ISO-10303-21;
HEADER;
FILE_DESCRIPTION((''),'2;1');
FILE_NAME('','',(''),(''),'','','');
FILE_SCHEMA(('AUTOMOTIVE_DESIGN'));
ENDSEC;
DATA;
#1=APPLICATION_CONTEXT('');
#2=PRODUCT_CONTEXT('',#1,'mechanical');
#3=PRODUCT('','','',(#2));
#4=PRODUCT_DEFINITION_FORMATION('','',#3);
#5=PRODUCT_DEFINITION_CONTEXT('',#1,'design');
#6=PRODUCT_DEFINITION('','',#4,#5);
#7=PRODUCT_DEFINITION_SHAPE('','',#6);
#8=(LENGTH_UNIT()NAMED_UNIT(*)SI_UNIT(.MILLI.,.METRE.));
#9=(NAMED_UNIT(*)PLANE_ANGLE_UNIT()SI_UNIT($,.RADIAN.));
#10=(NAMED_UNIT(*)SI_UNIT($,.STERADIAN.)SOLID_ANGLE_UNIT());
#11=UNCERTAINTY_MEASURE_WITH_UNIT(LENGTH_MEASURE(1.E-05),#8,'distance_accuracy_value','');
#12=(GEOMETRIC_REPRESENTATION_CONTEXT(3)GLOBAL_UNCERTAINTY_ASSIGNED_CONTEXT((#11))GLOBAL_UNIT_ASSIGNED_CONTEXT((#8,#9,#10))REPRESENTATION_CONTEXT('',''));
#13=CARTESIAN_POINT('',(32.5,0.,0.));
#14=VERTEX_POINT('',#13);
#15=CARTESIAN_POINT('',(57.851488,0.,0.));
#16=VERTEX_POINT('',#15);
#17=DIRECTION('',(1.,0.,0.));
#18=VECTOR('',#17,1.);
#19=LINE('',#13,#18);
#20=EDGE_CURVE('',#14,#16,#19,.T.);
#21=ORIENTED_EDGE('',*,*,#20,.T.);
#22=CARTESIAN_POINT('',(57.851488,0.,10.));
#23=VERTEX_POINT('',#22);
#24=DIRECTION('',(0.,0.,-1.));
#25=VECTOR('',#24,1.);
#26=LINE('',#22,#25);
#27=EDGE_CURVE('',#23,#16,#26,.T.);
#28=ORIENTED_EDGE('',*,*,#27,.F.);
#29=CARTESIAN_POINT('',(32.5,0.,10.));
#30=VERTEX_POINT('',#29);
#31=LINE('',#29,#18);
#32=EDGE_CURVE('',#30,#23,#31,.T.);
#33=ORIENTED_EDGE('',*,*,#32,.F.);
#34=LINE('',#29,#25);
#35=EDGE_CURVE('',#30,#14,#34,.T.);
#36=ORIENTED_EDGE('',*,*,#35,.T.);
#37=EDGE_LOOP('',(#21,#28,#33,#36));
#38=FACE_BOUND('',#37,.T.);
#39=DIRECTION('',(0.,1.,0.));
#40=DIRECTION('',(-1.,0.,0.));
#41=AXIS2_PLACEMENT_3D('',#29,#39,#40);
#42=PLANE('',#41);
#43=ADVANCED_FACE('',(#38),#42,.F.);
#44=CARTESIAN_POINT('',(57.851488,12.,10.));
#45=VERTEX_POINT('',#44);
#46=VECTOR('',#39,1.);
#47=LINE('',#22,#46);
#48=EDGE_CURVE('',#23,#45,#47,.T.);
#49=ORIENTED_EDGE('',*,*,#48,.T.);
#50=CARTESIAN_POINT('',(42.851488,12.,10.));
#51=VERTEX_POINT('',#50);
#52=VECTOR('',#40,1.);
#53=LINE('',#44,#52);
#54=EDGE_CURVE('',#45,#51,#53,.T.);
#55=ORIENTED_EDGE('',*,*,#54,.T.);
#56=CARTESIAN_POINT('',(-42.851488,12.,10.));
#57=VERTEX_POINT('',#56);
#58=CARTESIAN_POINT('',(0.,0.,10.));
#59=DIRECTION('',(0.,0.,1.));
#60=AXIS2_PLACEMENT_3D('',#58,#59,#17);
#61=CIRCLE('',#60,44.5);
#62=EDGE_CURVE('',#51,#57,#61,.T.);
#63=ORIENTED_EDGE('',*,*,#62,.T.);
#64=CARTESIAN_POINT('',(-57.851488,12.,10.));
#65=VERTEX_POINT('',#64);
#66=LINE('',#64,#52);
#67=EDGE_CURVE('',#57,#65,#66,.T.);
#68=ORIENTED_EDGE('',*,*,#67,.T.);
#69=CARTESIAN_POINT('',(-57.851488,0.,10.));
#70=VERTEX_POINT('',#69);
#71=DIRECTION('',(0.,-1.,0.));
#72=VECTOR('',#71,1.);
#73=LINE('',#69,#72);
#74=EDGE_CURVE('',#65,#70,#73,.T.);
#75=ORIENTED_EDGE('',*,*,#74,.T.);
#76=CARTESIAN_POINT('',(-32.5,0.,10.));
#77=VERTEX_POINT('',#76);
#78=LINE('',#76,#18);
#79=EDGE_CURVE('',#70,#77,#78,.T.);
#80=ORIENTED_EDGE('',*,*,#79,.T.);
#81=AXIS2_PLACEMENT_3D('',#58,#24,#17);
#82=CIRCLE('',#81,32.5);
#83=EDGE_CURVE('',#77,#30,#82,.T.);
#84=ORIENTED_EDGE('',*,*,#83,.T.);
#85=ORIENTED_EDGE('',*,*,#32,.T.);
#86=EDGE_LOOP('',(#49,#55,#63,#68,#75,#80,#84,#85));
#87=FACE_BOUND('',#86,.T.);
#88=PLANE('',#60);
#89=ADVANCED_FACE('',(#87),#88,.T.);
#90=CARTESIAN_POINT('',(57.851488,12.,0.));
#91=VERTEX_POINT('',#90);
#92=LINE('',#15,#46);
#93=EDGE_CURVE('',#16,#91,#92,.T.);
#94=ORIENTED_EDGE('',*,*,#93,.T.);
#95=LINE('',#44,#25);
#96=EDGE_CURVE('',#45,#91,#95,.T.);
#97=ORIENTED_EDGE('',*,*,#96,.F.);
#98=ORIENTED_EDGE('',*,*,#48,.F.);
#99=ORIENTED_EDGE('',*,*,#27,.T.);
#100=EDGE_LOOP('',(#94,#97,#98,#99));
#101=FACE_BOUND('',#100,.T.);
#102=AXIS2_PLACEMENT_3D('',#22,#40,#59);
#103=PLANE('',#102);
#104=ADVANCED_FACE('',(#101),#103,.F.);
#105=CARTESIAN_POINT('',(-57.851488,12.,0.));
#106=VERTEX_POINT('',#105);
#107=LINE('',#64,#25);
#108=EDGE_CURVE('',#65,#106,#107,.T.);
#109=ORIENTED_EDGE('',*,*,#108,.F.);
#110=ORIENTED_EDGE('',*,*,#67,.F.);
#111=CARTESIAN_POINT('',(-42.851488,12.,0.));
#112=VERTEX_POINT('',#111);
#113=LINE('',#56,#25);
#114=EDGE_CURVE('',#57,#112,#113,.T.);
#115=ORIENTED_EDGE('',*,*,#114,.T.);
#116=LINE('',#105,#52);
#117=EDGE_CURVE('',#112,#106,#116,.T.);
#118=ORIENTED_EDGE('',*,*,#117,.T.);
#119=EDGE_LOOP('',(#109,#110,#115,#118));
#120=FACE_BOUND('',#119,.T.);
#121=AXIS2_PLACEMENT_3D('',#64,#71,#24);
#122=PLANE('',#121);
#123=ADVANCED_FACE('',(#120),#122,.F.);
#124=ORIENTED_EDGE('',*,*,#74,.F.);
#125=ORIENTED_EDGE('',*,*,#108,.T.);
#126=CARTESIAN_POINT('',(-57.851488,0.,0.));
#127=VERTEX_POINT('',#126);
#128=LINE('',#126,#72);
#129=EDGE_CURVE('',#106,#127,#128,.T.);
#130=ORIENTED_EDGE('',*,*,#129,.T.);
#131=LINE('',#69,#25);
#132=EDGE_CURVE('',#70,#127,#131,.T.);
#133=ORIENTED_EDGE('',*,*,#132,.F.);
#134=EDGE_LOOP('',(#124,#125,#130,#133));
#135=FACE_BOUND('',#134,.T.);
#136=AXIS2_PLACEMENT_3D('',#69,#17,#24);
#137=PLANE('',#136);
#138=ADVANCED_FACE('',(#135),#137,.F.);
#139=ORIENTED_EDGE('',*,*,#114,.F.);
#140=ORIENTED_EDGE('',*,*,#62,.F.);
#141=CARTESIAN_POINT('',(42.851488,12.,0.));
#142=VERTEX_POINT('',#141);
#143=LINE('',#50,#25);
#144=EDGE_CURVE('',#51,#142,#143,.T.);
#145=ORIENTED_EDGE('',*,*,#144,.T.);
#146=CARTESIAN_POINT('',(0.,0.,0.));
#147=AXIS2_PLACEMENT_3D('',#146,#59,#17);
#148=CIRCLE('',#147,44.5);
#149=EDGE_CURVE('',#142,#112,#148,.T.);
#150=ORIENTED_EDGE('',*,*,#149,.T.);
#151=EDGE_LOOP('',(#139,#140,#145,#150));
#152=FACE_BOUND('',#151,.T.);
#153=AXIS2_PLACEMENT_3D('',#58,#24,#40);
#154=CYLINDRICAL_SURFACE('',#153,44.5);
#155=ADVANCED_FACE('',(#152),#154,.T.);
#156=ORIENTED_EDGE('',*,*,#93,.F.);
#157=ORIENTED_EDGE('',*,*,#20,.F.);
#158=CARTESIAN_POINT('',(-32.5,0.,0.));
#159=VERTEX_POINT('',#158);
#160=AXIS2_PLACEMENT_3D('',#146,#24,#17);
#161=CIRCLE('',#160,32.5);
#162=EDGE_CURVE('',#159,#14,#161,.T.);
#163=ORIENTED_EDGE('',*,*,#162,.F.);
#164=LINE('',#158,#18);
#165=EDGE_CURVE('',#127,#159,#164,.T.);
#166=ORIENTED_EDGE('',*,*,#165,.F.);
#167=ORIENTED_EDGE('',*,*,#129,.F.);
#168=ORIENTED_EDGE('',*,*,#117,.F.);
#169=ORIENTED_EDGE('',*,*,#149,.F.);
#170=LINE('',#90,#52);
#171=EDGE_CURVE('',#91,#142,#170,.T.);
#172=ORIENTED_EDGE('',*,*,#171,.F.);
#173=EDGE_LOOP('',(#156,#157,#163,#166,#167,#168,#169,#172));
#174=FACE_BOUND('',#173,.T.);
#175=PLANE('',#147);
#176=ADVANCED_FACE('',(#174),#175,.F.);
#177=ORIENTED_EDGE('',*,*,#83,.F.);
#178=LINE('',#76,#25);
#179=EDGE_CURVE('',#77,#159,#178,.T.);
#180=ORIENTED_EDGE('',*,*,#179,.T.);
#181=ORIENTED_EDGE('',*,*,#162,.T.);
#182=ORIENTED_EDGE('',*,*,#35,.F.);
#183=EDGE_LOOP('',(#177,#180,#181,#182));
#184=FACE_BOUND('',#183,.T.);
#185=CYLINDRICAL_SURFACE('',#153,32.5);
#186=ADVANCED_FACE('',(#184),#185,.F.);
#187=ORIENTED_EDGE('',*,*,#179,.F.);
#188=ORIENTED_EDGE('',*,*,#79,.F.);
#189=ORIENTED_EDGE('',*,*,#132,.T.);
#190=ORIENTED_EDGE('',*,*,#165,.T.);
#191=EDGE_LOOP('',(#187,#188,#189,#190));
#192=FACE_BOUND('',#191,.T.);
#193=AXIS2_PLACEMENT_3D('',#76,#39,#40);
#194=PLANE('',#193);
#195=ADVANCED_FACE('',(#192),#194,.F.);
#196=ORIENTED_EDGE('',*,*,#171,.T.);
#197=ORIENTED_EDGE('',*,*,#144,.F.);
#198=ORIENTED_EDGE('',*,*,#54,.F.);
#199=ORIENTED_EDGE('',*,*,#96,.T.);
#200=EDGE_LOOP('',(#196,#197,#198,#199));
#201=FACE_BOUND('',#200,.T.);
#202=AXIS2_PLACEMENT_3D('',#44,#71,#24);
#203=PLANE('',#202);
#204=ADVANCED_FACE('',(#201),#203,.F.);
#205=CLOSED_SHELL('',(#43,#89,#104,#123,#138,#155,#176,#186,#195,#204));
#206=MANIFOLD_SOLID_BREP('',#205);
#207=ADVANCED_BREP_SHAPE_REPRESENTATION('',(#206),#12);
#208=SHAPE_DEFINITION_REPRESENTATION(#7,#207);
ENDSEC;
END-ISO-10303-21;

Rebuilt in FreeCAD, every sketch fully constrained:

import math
import FreeCAD as App
import Part
import Sketcher

V = App.Vector
Q = App.Units.Quantity

doc = App.newDocument("Part")
body = doc.addObject("PartDesign::Body", "Body")

sketch1 = body.newObject("Sketcher::SketchObject", "Sketch")
sketch1.AttachmentSupport = (doc.getObject("XY_Plane"), [""])
sketch1.MapMode = "FlatFace"
sketch1.addGeometry(Part.LineSegment(V(-58, 0, 0), V(-32, 0, 0)), False)
sketch1.addGeometry(Part.ArcOfCircle(Part.Circle(V(0, 0, 0), V(0, 0, 1), 32), math.radians(0), math.radians(180)), False)
sketch1.addGeometry(Part.LineSegment(V(32, 0, 0), V(58, 0, 0)), False)
sketch1.addGeometry(Part.LineSegment(V(58, 0, 0), V(58, 12, 0)), False)
sketch1.addGeometry(Part.LineSegment(V(58, 12, 0), V(43, 12, 0)), False)
sketch1.addGeometry(Part.ArcOfCircle(Part.Circle(V(0, 0, 0), V(0, 0, 1), 44), math.radians(16), math.radians(164)), False)
sketch1.addGeometry(Part.LineSegment(V(-43, 12, 0), V(-58, 12, 0)), False)
sketch1.addGeometry(Part.LineSegment(V(-58, 12, 0), V(-58, 0, 0)), False)
sketch1.addConstraint(Sketcher.Constraint("Coincident", 0, 2, 1, 2))
sketch1.addConstraint(Sketcher.Constraint("Coincident", 1, 1, 2, 1))
sketch1.addConstraint(Sketcher.Constraint("Coincident", 2, 2, 3, 1))
sketch1.addConstraint(Sketcher.Constraint("Coincident", 3, 2, 4, 1))
sketch1.addConstraint(Sketcher.Constraint("Coincident", 4, 2, 5, 1))
sketch1.addConstraint(Sketcher.Constraint("Coincident", 5, 2, 6, 1))
sketch1.addConstraint(Sketcher.Constraint("Coincident", 6, 2, 7, 1))
sketch1.addConstraint(Sketcher.Constraint("Coincident", 7, 2, 0, 1))
sketch1.addConstraint(Sketcher.Constraint("Horizontal", 0))
sketch1.addConstraint(Sketcher.Constraint("Horizontal", 2))
sketch1.addConstraint(Sketcher.Constraint("Vertical", 3))
sketch1.addConstraint(Sketcher.Constraint("Horizontal", 4))
sketch1.addConstraint(Sketcher.Constraint("Horizontal", 6))
sketch1.addConstraint(Sketcher.Constraint("Vertical", 7))
sketch1.addConstraint(Sketcher.Constraint("Coincident", 1, 3, -1, 1))
sketch1.addConstraint(Sketcher.Constraint("Coincident", 5, 3, -1, 1))
sketch1.addConstraint(Sketcher.Constraint("Symmetric", 2, 2, 7, 2, -1, 1))
sketch1.addConstraint(Sketcher.Constraint("PointOnObject", 0, 2, -1))
sketch1.addConstraint(Sketcher.Constraint("Horizontal", 4, 2, 5, 2))
sketch1.addConstraint(Sketcher.Constraint("Radius", 1, Q("32.5 mm")))
sketch1.addConstraint(Sketcher.Constraint("Radius", 5, Q("44.5 mm")))
sketch1.addConstraint(Sketcher.Constraint("DistanceX", 4, 2, 4, 1, Q("15 mm")))
sketch1.addConstraint(Sketcher.Constraint("DistanceY", 3, 1, 3, 2, Q("12 mm")))
pad1 = body.newObject("PartDesign::Pad", "Pad")
pad1.Profile = sketch1
pad1.Length = 10

doc.recompute()
